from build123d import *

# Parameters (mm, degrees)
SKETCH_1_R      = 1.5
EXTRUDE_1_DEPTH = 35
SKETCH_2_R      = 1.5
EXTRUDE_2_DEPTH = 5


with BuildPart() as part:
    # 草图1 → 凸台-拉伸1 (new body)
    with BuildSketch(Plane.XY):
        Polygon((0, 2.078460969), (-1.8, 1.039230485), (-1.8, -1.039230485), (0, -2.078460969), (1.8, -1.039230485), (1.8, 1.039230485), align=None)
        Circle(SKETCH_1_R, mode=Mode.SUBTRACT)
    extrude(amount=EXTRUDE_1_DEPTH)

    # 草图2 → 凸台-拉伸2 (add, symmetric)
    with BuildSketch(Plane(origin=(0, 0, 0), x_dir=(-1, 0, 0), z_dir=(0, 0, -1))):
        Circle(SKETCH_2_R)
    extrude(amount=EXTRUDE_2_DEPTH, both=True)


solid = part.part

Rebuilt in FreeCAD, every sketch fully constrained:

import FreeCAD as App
import Part
import Sketcher
Q = App.Units.Quantity


def add_polygon(sketch, points):
    """Adds a closed chain of lines whose ends are joined by coincident constraints."""
    first, n = sketch.GeometryCount, len(points)
    for a, b in zip(points, points[1:] + points[:1]):
        sketch.addGeometry(Part.LineSegment(App.Vector(*a, 0), App.Vector(*b, 0)), False)
    for i in range(n):
        sketch.addConstraint(Sketcher.Constraint("Coincident", first + i, 2, first + (i + 1) % n, 1))

doc = App.newDocument("Part")
body = doc.addObject("PartDesign::Body", "Body")

sketch1 = body.newObject("Sketcher::SketchObject", "Sketch")
sketch1.AttachmentSupport = (doc.getObject("XY_Plane"), [""])
sketch1.MapMode = "FlatFace"
add_polygon(sketch1, [(0, 2.1), (-1.8, 1), (-1.8, -1), (0, -2.1), (1.8, -1), (1.8, 1)])
sketch1.addGeometry(Part.Circle(App.Vector(0, 0, 0), App.Vector(0, 0, 1), 1.5), False)
sketch1.addConstraint([
    Sketcher.Constraint("Vertical", 1),
    Sketcher.Constraint("Vertical", 4),
    Sketcher.Constraint("Coincident", 6, 3, -1, 1),
    Sketcher.Constraint("Symmetric", 0, 2, 3, 2, -1, 1),
    Sketcher.Constraint("Symmetric", 2, 2, 5, 2, -1, 1),
    Sketcher.Constraint("PointOnObject", 2, 2, -2),
    Sketcher.Constraint("Parallel", 2, 5),
    Sketcher.Constraint("Horizontal", 1, 2, 3, 2),
    Sketcher.Constraint("Diameter", 6, Q("3 mm")),
    Sketcher.Constraint("Angle", 0, Q("-150 deg")),
    Sketcher.Constraint("DistanceX", 0, 2, -1, 1, Q("1.8 mm")),
    Sketcher.Constraint("DistanceY", 1, 2, 1, 1, Q("2.078461 mm")),
])
pad1 = body.newObject("PartDesign::Pad", "Pad")
pad1.Profile = sketch1
pad1.Length = 35

sketch2 = body.newObject("Sketcher::SketchObject", "Sketch001")
sketch2.AttachmentSupport = (doc.getObject("XY_Plane"), [""])
sketch2.MapMode = "FlatFace"
sketch2.addGeometry(Part.Circle(App.Vector(0, 0, 0), App.Vector(0, 0, 1), 1.5), False)
sketch2.addConstraint([
    Sketcher.Constraint("Coincident", 0, 3, -1, 1),
    Sketcher.Constraint("Diameter", 0, Q("3 mm")),
])
pad2 = body.newObject("PartDesign::Pad", "Pad001")
pad2.Profile = sketch2
pad2.Length = 10
pad2.Midplane = True

doc.recompute()
